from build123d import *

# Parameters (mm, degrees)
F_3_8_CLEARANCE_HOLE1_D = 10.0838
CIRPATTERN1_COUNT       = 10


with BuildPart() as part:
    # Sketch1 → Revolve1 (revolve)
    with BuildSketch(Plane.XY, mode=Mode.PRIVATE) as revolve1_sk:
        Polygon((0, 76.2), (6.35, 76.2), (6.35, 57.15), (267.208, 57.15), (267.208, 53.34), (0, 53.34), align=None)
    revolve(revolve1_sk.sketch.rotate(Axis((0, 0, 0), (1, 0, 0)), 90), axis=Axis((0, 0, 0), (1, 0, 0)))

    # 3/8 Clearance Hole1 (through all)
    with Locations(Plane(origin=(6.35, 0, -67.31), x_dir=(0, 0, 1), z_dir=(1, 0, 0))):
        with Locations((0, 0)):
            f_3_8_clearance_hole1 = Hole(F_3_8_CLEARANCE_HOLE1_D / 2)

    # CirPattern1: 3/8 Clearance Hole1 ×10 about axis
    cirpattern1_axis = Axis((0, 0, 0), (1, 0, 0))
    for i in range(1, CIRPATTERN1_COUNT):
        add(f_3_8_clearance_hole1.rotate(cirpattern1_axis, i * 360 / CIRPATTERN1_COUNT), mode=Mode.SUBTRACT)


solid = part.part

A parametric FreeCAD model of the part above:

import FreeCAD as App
import Part
import Sketcher

V = App.Vector
Q = App.Units.Quantity

doc = App.newDocument("Part")
body = doc.addObject("PartDesign::Body", "Body")

# Sketch on XY plane
sketch1 = body.newObject("Sketcher::SketchObject", "Sketch")
sketch1.AttachmentSupport = (doc.getObject("XY_Plane"), [""])
sketch1.MapMode = "FlatFace"
sketch1.addGeometry([
    Part.LineSegment(V(6.35, 76.2, 0), V(0, 76.2, 0)),  # 0
    Part.LineSegment(V(0, 76.2, 0), V(0, 53.34, 0)),  # 1
    Part.LineSegment(V(0, 53.34, 0), V(267.208, 53.34, 0)),  # 2
    Part.LineSegment(V(267.208, 53.34, 0), V(267.208, 57.15, 0)),  # 3
    Part.LineSegment(V(267.208, 57.15, 0), V(6.35, 57.15, 0)),  # 4
    Part.LineSegment(V(6.35, 57.15, 0), V(6.35, 76.2, 0)),  # 5
], False)
sketch1.addConstraint([
    Sketcher.Constraint("Coincident", 0, 2, 1, 1),
    Sketcher.Constraint("Coincident", 1, 2, 2, 1),
    Sketcher.Constraint("Coincident", 2, 2, 3, 1),
    Sketcher.Constraint("Coincident", 3, 2, 4, 1),
    Sketcher.Constraint("Coincident", 4, 2, 5, 1),
    Sketcher.Constraint("Coincident", 5, 2, 0, 1),
    Sketcher.Constraint("Horizontal", 0),
    Sketcher.Constraint("Vertical", 1),
    Sketcher.Constraint("Horizontal", 2),
    Sketcher.Constraint("Vertical", 3),
    Sketcher.Constraint("Horizontal", 4),
    Sketcher.Constraint("Vertical", 5),
    Sketcher.Constraint("PointOnObject", 0, 2, -2),
    Sketcher.Constraint("DistanceY", 1, 2, 1, 1, Q("0.9 in")),
    Sketcher.Constraint("DistanceY", -1, 1, 0, 2, Q("3 in")),
    Sketcher.Constraint("DistanceX", 0, 2, 0, 1, Q("0.25 in")),
    Sketcher.Constraint("DistanceX", 2, 1, 2, 2, Q("10.52 in")),
    Sketcher.Constraint("DistanceY", 3, 1, 3, 2, Q("0.15 in")),
])
revolution = body.newObject("PartDesign::Revolution", "Revolution")
revolution.Profile = sketch1
revolution.ReferenceAxis = (sketch1, ["H_Axis"])
revolution.Angle = 360

# Sketch on YZ plane
sketch2 = body.newObject("Sketcher::SketchObject", "Sketch001")
sketch2.AttachmentSupport = (doc.getObject("YZ_Plane"), [""])
sketch2.MapMode = "FlatFace"
sketch2.AttachmentOffset = App.Placement(V(0, 0, 0.25 * 25.4), App.Rotation())
sketch2.addGeometry(Part.Circle(V(0, -67.31, 0), V(0, 0, 1), 5.0419), False)
sketch2.addConstraint([
    Sketcher.Constraint("PointOnObject", 0, 3, -2),
    Sketcher.Constraint("Diameter", 0, Q("0.397 in")),
    Sketcher.Constraint("DistanceY", 0, 3, -1, 1, Q("2.65 in")),
])
doc.recompute()
hole = body.newObject("PartDesign::Hole", "Hole")
hole.Profile = sketch2
hole.ThreadType = "None"
hole.Diameter = Q("0.397 in")
hole.DepthType = "ThroughAll"
doc.recompute()

polarpattern = body.newObject("PartDesign::PolarPattern", "PolarPattern")
polarpattern.Originals = [hole]
polarpattern.Axis = (doc.getObject("X_Axis"), [""])
polarpattern.Angle = 360
polarpattern.Occurrences = 10
body.Tip = polarpattern

doc.recompute()
